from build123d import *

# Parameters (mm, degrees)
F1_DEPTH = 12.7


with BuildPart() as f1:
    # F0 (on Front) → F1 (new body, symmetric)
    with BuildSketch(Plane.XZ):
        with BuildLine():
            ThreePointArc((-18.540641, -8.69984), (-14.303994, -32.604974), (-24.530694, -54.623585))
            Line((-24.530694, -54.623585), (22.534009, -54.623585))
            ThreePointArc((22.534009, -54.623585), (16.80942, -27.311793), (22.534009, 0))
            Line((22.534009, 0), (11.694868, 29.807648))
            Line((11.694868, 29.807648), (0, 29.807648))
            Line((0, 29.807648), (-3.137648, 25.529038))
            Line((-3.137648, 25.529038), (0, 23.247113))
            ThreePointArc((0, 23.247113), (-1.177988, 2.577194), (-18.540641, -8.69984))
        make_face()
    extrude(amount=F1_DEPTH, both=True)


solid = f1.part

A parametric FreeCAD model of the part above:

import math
import FreeCAD as App
import Part
import Sketcher
from FreeCAD import Vector
Q = App.Units.Quantity

doc = App.newDocument("Part")
body = doc.addObject("PartDesign::Body", "Body")

# Sketch on XZ plane
sketch1 = body.newObject("Sketcher::SketchObject", "Sketch")
sketch1.AttachmentSupport = (doc.getObject("XZ_Plane"), [""])
sketch1.MapMode = "FlatFace"
sketch1.addGeometry(Part.ArcOfCircle(Part.Circle(Vector(-54.4, -27.4, 0), Vector(0, 0, 1), 40.4), math.radians(-42), math.radians(28)), False)
sketch1.addGeometry(Part.LineSegment(Vector(-24.5, -54.6, 0), Vector(22.5, -54.6, 0)), False)
sketch1.addGeometry(Part.ArcOfCircle(Part.Circle(Vector(84.8, -27.3, 0), Vector(0, 0, 1), 68), math.radians(156), math.radians(204)), False)
sketch1.addGeometry(Part.LineSegment(Vector(22.5, 0, 0), Vector(11.7, 29.8, 0)), False)
sketch1.addGeometry(Part.LineSegment(Vector(11.7, 29.8, 0), Vector(0, 29.8, 0)), False)
sketch1.addGeometry(Part.LineSegment(Vector(0, 29.8, 0), Vector(-3.1, 25.5, 0)), False)
sketch1.addGeometry(Part.LineSegment(Vector(-3.1, 25.5, 0), Vector(0, 23.2, 0)), False)
sketch1.addGeometry(Part.ArcOfCircle(Part.Circle(Vector(-21, 14.1, 0), Vector(0, 0, 1), 22.9), math.radians(-84), math.radians(24)), False)
sketch1.addConstraint(Sketcher.Constraint("Coincident", 0, 1, 1, 1))
sketch1.addConstraint(Sketcher.Constraint("Coincident", 1, 2, 2, 2))
sketch1.addConstraint(Sketcher.Constraint("Coincident", 2, 1, 3, 1))
sketch1.addConstraint(Sketcher.Constraint("Coincident", 3, 2, 4, 1))
sketch1.addConstraint(Sketcher.Constraint("Coincident", 4, 2, 5, 1))
sketch1.addConstraint(Sketcher.Constraint("Coincident", 5, 2, 6, 1))
sketch1.addConstraint(Sketcher.Constraint("Coincident", 6, 2, 7, 2))
sketch1.addConstraint(Sketcher.Constraint("Coincident", 7, 1, 0, 2))
sketch1.addConstraint(Sketcher.Constraint("Horizontal", 1))
sketch1.addConstraint(Sketcher.Constraint("Horizontal", 4))
sketch1.addConstraint(Sketcher.Constraint("PointOnObject", 2, 1, -1))
sketch1.addConstraint(Sketcher.Constraint("PointOnObject", 4, 2, -2))
sketch1.addConstraint(Sketcher.Constraint("PointOnObject", 6, 2, -2))
sketch1.addConstraint(Sketcher.Constraint("Vertical", 1, 2, 2, 1))
sketch1.addConstraint(Sketcher.Constraint("Radius", 0, Q("40.409309 mm")))
sketch1.addConstraint(Sketcher.Constraint("Radius", 2, Q("68.014047 mm")))
sketch1.addConstraint(Sketcher.Constraint("Radius", 7, Q("22.905857 mm")))
sketch1.addConstraint(Sketcher.Constraint("DistanceX", 7, 3, 7, 1, Q("0.0963999 in")))
sketch1.addConstraint(Sketcher.Constraint("DistanceX", 7, 3, -1, 1, Q("20.989198 mm")))
sketch1.addConstraint(Sketcher.Constraint("DistanceX", 1, 1, 1, 2, Q("47.064703 mm")))
sketch1.addConstraint(Sketcher.Constraint("DistanceX", 4, 2, 4, 1, Q("11.694868 mm")))
sketch1.addConstraint(Sketcher.Constraint("DistanceX", 0, 3, -1, 1, Q("54.373882 mm")))
sketch1.addConstraint(Sketcher.Constraint("DistanceY", -1, 1, 7, 3, Q("14.07477 mm")))
sketch1.addConstraint(Sketcher.Constraint("DistanceX", -1, 1, 1, 2, Q("22.534009 mm")))
sketch1.addConstraint(Sketcher.Constraint("DistanceY", -1, 1, 3, 2, Q("29.807648 mm")))
sketch1.addConstraint(Sketcher.Constraint("DistanceX", 5, 2, -1, 1, Q("3.137648 mm")))
sketch1.addConstraint(Sketcher.Constraint("DistanceY", -1, 1, 5, 2, Q("25.529038 mm")))
pad1 = body.newObject("PartDesign::Pad", "Pad")
pad1.Profile = sketch1
pad1.Length = Q("1 in")
pad1.Midplane = True

doc.recompute()
